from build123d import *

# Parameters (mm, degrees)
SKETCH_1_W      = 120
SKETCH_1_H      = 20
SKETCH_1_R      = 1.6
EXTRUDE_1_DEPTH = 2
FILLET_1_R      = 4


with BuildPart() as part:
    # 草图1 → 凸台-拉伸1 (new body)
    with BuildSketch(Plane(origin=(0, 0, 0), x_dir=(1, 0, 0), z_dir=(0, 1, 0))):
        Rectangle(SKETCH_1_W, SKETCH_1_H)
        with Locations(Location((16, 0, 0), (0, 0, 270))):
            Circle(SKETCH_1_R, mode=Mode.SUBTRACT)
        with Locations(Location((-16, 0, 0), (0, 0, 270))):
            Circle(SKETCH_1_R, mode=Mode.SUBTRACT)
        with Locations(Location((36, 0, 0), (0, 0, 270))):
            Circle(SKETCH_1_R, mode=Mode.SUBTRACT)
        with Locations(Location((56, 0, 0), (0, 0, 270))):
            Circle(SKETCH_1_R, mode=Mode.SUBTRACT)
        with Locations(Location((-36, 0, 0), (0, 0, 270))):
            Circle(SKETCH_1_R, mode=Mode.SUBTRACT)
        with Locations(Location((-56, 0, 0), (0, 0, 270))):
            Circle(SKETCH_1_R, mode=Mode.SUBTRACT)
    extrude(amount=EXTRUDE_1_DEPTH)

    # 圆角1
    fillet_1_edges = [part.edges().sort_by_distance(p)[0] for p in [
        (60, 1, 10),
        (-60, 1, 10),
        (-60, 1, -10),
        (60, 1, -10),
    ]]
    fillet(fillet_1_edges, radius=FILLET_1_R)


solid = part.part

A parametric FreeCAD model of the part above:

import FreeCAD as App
import Part
import Sketcher
Q = App.Units.Quantity


def edges_at(feature, points):
    """Names of the edges that pass closest to the given points."""
    edges = feature.Shape.Edges
    near = lambda p: min(range(len(edges)), key=lambda i: edges[i].distToShape(Part.Vertex(*p))[0])
    return sorted({f"Edge{near(p) + 1}" for p in points})

doc = App.newDocument("Part")
body = doc.addObject("PartDesign::Body", "Body")

# Sketch on XZ plane
sketch1 = doc.addObject("Sketcher::SketchObject", "Sketch")
body.addObject(sketch1)
sketch1.AttachmentSupport = (doc.XZ_Plane, [""])
sketch1.MapMode = "FlatFace"
sketch1.addGeometry([
    Part.LineSegment(App.Vector(-60, -10, 0), App.Vector(-60, 10, 0)),  # 0
    Part.LineSegment(App.Vector(-60, 10, 0), App.Vector(60, 10, 0)),  # 1
    Part.LineSegment(App.Vector(60, 10, 0), App.Vector(60, -10, 0)),  # 2
    Part.LineSegment(App.Vector(60, -10, 0), App.Vector(-60, -10, 0)),  # 3
    Part.Circle(App.Vector(-56, 0, 0), App.Vector(0, 0, 1), 1.6),  # 4
    Part.Circle(App.Vector(-36, 0, 0), App.Vector(0, 0, 1), 1.6),  # 5
    Part.Circle(App.Vector(-16, 0, 0), App.Vector(0, 0, 1), 1.6),  # 6
    Part.Circle(App.Vector(16, 0, 0), App.Vector(0, 0, 1), 1.6),  # 7
    Part.Circle(App.Vector(36, 0, 0), App.Vector(0, 0, 1), 1.6),  # 8
    Part.Circle(App.Vector(56, 0, 0), App.Vector(0, 0, 1), 1.6),  # 9
], False)
sketch1.addConstraint([
    Sketcher.Constraint("Coincident", 0, 2, 1, 1),
    Sketcher.Constraint("Coincident", 1, 2, 2, 1),
    Sketcher.Constraint("Coincident", 2, 2, 3, 1),
    Sketcher.Constraint("Coincident", 3, 2, 0, 1),
    Sketcher.Constraint("Vertical", 0),
    Sketcher.Constraint("Horizontal", 1),
    Sketcher.Constraint("Vertical", 2),
    Sketcher.Constraint("Horizontal", 3),
    Sketcher.Constraint("Equal", 4, 5),
    Sketcher.Constraint("Equal", 5, 6),
    Sketcher.Constraint("Equal", 6, 7),
    Sketcher.Constraint("Equal", 7, 8),
    Sketcher.Constraint("Equal", 8, 9),
    Sketcher.Constraint("Symmetric", 6, 3, 7, 3, -1, 1),
    Sketcher.Constraint("Symmetric", 5, 3, 8, 3, -1, 1),
    Sketcher.Constraint("Symmetric", 4, 3, 9, 3, -1, 1),
    Sketcher.Constraint("Symmetric", 0, 2, 2, 2, -1, 1),
    Sketcher.Constraint("PointOnObject", 4, 3, -1),
    Sketcher.Constraint("PointOnObject", 5, 3, -1),
    Sketcher.Constraint("PointOnObject", 6, 3, -1),
    Sketcher.Constraint("Diameter", 4, Q("3.2 mm")),
    Sketcher.Constraint("DistanceX", 1, 1, 1, 2, Q("120 mm")),
    Sketcher.Constraint("DistanceY", 0, 1, 0, 2, Q("20 mm")),
    Sketcher.Constraint("DistanceX", 4, 3, -1, 1, Q("56 mm")),
    Sketcher.Constraint("DistanceX", 5, 3, -1, 1, Q("36 mm")),
    Sketcher.Constraint("DistanceX", 6, 3, -1, 1, Q("16 mm")),
])
pad1 = doc.addObject("PartDesign::Pad", "Pad")
body.addObject(pad1)
pad1.Profile = sketch1
pad1.Length = 2
pad1.Reversed = True
doc.recompute()

fillet = doc.addObject("PartDesign::Fillet", "Fillet")
body.addObject(fillet)
fillet.Base = (pad1, edges_at(pad1, [
    (60, 1, 10),
    (-60, 1, 10),
    (-60, 1, -10),
    (60, 1, -10),
]))
fillet.Radius = 4

doc.recompute()
